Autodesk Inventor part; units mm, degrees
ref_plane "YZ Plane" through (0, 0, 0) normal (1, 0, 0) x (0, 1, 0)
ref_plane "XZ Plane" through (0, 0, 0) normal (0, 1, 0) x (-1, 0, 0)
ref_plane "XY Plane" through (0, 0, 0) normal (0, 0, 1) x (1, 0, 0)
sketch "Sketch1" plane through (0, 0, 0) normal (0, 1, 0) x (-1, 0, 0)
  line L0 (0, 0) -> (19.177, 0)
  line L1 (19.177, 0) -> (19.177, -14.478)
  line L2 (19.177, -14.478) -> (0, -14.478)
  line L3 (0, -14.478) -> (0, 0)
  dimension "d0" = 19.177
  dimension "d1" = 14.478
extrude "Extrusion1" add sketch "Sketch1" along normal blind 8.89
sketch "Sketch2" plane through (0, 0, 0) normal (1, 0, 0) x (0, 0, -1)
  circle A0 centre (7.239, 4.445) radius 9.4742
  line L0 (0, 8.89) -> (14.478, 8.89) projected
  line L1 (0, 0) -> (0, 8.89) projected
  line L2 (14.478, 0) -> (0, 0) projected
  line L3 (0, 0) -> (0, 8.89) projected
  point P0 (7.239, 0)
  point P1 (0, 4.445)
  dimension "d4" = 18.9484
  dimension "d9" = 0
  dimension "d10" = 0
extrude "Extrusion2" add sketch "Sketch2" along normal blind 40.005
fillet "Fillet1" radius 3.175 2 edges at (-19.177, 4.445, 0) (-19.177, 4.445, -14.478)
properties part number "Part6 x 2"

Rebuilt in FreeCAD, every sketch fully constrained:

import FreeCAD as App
import Part
import Sketcher

V = App.Vector
Q = App.Units.Quantity


def edges_at(feature, points):
    """Names of the edges that pass closest to the given points."""
    edges = feature.Shape.Edges
    near = lambda p: min(range(len(edges)), key=lambda i: edges[i].distToShape(Part.Vertex(*p))[0])
    return sorted({f"Edge{near(p) + 1}" for p in points})


def add_polygon(sketch, points):
    """Adds a closed chain of lines whose ends are joined by coincident constraints."""
    first, n = sketch.GeometryCount, len(points)
    for a, b in zip(points, points[1:] + points[:1]):
        sketch.addGeometry(Part.LineSegment(App.Vector(*a, 0), App.Vector(*b, 0)), False)
    for i in range(n):
        sketch.addConstraint(Sketcher.Constraint("Coincident", first + i, 2, first + (i + 1) % n, 1))

doc = App.newDocument("Part")
params = doc.addObject("Spreadsheet::Sheet", "Params")
for row, (alias, value) in enumerate([
    ("sketch1_height", "0.57 in"),
    ("sketch1_width", "0.755 in"),
    ("pad1_length", "0.35 in"),
    ("sketch2_diameter", "0.746 in"),
    ("pad2_length", "1.575 in"),
    ("fillet_radius", "0.125 in"),
], start=1):
    params.set(f"A{row}", alias)
    params.set(f"B{row}", "=" + value)
    params.setAlias(f"B{row}", alias)

body = doc.addObject("PartDesign::Body", "Body")

sketch1 = body.newObject("Sketcher::SketchObject", "Sketch")
sketch1.AttachmentSupport = (doc.getObject("XZ_Plane"), [""])
sketch1.MapMode = "FlatFace"
add_polygon(sketch1, [(-19, 0), (0, 0), (0, -14), (-19, -14)])
sketch1.addConstraint([
    Sketcher.Constraint("Horizontal", 0),
    Sketcher.Constraint("Vertical", 1),
    Sketcher.Constraint("Horizontal", 2),
    Sketcher.Constraint("Vertical", 3),
    Sketcher.Constraint("Coincident", 0, 2, -1, 1),
    Sketcher.Constraint("DistanceY", 1, 2, 1, 1, Q("0.57 in")),
    Sketcher.Constraint("DistanceX", 0, 1, 0, 2, Q("0.755 in")),
])
sketch1.setExpression("Constraints[9]", "Params.sketch1_height")
sketch1.setExpression("Constraints[10]", "Params.sketch1_width")
pad1 = body.newObject("PartDesign::Pad", "Pad")
pad1.Profile = sketch1
pad1.setExpression("Length", "Params.pad1_length")
pad1.Reversed = True

sketch2 = body.newObject("Sketcher::SketchObject", "Sketch001")
sketch2.AttachmentSupport = (doc.getObject("YZ_Plane"), [""])
sketch2.MapMode = "FlatFace"
sketch2.addGeometry(Part.Circle(V(4, -7, 0), V(0, 0, 1), 9), False)
sketch2.addConstraint([
    Sketcher.Constraint("Diameter", 0, Q("0.746 in")),
    Sketcher.Constraint("DistanceX", -1, 1, 0, 3, Q("0.175 in")),
    Sketcher.Constraint("DistanceY", 0, 3, -1, 1, Q("0.285 in")),
])
sketch2.setExpression("Constraints[0]", "Params.sketch2_diameter")
pad2 = body.newObject("PartDesign::Pad", "Pad001")
pad2.Profile = sketch2
pad2.setExpression("Length", "Params.pad2_length")
doc.recompute()

fillet = body.newObject("PartDesign::Fillet", "Fillet")
fillet.Base = (pad2, edges_at(pad2, [(-19.177, 4.445, 0), (-19.177, 4.445, -14.478)]))
fillet.setExpression("Radius", "Params.fillet_radius")

doc.recompute()
